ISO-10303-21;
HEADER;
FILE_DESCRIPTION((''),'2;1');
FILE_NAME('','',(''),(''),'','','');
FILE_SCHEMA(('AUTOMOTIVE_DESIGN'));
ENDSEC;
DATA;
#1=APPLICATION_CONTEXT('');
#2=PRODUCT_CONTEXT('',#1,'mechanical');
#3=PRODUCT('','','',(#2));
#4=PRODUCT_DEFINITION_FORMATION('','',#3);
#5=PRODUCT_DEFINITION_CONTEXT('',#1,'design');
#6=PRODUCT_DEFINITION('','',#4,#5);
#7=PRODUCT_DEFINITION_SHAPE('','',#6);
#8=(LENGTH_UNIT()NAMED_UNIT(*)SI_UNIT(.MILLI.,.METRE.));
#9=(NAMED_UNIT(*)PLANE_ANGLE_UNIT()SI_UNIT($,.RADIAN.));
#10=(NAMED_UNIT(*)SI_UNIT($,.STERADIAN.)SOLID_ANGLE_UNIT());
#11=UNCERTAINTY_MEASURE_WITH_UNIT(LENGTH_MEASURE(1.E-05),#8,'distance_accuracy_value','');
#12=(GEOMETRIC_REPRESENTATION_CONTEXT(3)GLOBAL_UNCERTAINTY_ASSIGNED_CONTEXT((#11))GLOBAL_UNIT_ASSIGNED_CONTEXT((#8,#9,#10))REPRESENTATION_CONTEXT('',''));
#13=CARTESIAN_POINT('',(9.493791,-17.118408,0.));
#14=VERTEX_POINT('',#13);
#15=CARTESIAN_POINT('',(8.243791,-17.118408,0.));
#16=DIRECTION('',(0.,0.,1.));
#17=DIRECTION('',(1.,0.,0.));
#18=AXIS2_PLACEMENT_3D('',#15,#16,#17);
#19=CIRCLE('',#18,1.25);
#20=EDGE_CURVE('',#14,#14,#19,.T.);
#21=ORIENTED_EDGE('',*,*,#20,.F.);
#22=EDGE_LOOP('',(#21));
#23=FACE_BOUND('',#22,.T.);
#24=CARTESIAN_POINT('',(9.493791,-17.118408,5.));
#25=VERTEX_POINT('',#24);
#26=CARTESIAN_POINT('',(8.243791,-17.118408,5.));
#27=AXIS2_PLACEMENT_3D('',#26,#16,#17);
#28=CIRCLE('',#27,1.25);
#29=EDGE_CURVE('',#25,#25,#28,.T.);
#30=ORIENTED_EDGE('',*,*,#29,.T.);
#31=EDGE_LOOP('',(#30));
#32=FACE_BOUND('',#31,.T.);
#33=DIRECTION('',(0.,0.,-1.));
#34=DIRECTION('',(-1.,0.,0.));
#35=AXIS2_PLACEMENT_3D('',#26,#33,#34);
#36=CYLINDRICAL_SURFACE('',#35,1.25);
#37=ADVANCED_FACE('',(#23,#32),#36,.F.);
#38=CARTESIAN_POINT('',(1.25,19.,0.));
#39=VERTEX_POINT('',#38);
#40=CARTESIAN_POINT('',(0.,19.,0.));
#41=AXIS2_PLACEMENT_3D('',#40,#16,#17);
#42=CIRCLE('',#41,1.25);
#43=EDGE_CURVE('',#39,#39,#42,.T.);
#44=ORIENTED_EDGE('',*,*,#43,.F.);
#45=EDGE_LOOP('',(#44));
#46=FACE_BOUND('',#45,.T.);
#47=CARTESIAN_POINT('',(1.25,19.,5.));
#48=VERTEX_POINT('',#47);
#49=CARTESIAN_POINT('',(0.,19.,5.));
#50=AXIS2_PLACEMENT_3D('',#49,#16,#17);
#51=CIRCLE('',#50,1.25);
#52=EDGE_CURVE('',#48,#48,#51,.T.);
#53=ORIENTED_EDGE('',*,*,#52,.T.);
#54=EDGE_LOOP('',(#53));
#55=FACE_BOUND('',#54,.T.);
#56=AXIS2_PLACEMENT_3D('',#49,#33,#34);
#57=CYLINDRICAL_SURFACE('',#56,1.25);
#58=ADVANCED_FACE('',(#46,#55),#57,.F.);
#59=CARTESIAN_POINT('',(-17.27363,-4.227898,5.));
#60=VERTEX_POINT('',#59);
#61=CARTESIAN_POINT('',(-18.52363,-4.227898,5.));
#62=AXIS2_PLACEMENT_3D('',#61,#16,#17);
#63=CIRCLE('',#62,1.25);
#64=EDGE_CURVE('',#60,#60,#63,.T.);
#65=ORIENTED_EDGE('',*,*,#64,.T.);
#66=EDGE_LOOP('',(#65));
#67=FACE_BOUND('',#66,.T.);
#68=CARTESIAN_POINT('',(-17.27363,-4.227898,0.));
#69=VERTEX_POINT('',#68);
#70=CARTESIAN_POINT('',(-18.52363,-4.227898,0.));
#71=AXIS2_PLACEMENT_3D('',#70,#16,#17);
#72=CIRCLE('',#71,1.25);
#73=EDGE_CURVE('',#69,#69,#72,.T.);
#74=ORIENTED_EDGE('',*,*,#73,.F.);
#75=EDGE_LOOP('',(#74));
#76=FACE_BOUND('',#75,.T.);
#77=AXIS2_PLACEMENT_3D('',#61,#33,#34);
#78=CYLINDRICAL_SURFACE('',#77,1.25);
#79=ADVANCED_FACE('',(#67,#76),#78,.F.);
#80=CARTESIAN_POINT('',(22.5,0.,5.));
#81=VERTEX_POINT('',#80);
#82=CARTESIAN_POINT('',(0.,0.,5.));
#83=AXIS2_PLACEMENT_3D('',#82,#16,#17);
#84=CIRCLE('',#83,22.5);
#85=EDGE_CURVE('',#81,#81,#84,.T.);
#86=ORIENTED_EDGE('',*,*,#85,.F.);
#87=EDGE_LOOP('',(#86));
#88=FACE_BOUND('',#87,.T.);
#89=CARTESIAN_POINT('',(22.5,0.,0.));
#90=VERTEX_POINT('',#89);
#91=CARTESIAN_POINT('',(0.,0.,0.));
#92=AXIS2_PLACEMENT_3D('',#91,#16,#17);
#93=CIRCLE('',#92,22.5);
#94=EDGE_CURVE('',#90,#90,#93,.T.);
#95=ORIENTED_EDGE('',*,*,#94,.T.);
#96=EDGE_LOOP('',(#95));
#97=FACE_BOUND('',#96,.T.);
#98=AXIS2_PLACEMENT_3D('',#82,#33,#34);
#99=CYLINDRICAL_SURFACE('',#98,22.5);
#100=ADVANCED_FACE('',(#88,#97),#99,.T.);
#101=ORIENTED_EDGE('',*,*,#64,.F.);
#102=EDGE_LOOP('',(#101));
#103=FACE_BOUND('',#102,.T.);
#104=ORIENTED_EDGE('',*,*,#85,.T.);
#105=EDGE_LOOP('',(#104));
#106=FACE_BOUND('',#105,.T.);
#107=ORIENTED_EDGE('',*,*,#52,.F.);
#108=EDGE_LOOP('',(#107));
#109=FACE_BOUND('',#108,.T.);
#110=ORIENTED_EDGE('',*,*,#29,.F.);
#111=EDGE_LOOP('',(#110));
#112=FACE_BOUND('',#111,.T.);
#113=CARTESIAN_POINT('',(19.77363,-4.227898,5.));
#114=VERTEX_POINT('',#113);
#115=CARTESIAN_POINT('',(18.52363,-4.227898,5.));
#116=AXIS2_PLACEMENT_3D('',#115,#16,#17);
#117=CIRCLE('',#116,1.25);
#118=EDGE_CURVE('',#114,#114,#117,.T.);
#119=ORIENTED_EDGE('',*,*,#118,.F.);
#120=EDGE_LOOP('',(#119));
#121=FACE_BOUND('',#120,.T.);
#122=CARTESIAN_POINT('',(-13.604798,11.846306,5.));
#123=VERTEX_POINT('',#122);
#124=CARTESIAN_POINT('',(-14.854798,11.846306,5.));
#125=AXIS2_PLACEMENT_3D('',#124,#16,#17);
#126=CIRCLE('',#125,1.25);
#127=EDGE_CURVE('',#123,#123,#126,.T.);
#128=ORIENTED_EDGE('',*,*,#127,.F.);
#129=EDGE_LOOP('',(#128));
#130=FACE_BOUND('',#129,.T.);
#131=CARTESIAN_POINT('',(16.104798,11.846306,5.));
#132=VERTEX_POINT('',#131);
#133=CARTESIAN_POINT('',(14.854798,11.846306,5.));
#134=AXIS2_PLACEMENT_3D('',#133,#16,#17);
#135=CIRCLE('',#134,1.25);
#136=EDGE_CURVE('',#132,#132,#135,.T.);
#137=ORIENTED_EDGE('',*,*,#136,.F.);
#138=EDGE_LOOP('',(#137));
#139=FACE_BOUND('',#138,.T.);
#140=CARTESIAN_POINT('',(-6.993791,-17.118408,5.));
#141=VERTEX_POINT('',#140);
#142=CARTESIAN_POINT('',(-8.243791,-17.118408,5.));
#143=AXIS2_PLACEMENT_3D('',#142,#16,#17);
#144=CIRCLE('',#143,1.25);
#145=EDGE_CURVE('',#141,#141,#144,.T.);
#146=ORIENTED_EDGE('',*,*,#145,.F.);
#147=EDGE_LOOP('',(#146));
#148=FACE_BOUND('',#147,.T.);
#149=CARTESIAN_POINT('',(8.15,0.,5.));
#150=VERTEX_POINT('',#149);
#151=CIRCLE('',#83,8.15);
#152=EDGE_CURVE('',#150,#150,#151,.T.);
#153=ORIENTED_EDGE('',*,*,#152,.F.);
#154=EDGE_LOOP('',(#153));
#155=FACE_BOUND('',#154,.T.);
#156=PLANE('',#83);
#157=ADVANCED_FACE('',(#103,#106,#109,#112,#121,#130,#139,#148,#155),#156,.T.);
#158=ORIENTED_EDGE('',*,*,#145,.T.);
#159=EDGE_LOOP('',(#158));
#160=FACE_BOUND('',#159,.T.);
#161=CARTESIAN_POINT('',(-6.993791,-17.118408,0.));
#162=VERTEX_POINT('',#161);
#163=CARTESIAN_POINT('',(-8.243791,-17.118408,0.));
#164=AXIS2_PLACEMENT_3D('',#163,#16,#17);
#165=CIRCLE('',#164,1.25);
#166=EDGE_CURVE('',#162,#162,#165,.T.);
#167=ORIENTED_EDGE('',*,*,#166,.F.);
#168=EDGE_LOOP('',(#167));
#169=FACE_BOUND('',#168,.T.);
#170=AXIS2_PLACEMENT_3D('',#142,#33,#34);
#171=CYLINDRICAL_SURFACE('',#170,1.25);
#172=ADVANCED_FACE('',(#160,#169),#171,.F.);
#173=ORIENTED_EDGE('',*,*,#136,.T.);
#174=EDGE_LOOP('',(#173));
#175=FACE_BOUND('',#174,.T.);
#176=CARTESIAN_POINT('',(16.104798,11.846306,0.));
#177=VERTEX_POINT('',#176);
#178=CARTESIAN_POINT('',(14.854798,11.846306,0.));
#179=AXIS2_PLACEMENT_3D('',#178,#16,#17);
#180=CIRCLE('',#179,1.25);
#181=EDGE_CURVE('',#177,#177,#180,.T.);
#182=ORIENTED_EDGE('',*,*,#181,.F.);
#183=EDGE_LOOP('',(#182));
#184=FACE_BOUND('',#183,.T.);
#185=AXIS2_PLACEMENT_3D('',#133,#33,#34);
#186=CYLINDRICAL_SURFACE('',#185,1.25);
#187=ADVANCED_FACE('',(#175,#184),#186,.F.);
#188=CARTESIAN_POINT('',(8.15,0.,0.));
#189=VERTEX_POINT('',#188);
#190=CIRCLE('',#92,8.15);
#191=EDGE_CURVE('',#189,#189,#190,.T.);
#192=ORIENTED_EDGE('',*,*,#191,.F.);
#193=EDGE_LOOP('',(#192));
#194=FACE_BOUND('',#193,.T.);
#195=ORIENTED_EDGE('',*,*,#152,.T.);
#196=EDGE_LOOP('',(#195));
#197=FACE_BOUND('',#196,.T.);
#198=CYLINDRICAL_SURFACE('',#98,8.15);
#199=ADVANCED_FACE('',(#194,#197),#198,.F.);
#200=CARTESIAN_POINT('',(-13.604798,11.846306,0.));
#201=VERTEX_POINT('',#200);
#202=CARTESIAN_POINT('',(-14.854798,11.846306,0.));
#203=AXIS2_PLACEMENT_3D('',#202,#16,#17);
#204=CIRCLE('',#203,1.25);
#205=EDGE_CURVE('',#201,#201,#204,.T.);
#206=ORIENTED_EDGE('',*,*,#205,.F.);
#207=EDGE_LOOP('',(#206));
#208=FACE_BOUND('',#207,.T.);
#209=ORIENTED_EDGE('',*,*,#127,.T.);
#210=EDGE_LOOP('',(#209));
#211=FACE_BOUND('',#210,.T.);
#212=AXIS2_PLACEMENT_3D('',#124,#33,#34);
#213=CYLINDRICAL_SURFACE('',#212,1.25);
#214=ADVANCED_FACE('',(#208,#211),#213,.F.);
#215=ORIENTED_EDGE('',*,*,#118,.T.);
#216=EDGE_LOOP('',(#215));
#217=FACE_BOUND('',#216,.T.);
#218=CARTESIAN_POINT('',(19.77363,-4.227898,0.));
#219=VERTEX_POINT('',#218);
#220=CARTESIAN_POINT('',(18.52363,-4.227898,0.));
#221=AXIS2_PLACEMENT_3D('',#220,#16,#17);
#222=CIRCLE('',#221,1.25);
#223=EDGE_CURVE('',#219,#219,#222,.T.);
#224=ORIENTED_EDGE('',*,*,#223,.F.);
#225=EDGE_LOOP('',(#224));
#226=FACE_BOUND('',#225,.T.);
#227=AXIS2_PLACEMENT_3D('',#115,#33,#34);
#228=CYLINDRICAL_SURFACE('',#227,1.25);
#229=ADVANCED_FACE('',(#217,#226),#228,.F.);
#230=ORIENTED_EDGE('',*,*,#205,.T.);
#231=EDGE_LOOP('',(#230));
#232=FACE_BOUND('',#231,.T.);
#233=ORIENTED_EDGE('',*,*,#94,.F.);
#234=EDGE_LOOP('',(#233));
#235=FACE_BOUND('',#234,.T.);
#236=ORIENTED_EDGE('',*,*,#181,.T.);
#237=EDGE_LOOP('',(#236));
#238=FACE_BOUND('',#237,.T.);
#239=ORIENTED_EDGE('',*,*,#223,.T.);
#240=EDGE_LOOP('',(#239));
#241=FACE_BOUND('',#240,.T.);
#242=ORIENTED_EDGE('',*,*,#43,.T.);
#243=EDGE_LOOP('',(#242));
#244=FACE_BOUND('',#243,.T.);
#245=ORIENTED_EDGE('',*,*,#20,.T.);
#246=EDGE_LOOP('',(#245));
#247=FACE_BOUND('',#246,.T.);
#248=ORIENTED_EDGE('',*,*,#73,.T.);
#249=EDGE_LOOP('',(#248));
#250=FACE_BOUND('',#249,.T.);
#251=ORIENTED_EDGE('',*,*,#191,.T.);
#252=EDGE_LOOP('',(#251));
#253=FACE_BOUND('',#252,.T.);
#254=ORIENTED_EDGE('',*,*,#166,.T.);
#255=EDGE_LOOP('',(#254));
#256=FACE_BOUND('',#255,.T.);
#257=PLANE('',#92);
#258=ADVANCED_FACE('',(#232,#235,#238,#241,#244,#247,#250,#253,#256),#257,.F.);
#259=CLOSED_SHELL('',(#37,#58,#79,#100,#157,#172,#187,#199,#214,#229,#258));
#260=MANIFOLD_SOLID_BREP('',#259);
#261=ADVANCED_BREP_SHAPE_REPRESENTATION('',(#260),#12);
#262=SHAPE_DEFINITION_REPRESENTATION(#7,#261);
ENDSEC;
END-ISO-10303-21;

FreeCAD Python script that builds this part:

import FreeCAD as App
import Part
import Sketcher

V = App.Vector

doc = App.newDocument("Part")
params = doc.addObject("Spreadsheet::Sheet", "Params")
for row, (alias, value) in enumerate([
    ("sketch1_diameter", "45 mm"),
    ("sketch1_diameter2", "2.5 mm"),
    ("sketch1_diameter3", "16.3 mm"),
    ("pad1_length", "5 mm"),
], start=1):
    params.set(f"A{row}", alias)
    params.set(f"B{row}", "=" + value)
    params.setAlias(f"B{row}", alias)

body = doc.addObject("PartDesign::Body", "Body")

# Sketch on XY plane
sketch1 = body.newObject("Sketcher::SketchObject", "Sketch")
sketch1.AttachmentSupport = (doc.getObject("XY_Plane"), [""])
sketch1.MapMode = "FlatFace"
sketch1.addGeometry([
    Part.Circle(V(0, 0, 0), V(0, 0, 1), 22.5),  # 0
    Part.Circle(V(-8.2, -17.1, 0), V(0, 0, 1), 1.2),  # 1
    Part.Circle(V(-18.5, -4.2, 0), V(0, 0, 1), 1.2),  # 2
    Part.Circle(V(8.2, -17.1, 0), V(0, 0, 1), 1.2),  # 3
    Part.Circle(V(0, 0, 0), V(0, 0, 1), 8.2),  # 4
    Part.Circle(V(18.5, -4.2, 0), V(0, 0, 1), 1.2),  # 5
    Part.Circle(V(-14.9, 11.8, 0), V(0, 0, 1), 1.2),  # 6
    Part.Circle(V(0, 19, 0), V(0, 0, 1), 1.2),  # 7
    Part.Circle(V(14.9, 11.8, 0), V(0, 0, 1), 1.2),  # 8
], False)
sketch1.addConstraint([
    Sketcher.Constraint("Coincident", 0, 3, -1, 1),
    Sketcher.Constraint("Coincident", 4, 3, -1, 1),
    Sketcher.Constraint("Equal", 1, 2),
    Sketcher.Constraint("Equal", 2, 3),
    Sketcher.Constraint("Equal", 3, 5),
    Sketcher.Constraint("Equal", 5, 6),
    Sketcher.Constraint("Equal", 6, 7),
    Sketcher.Constraint("Equal", 7, 8),
    Sketcher.Constraint("Symmetric", 1, 3, 3, 3, -2),
    Sketcher.Constraint("Symmetric", 2, 3, 5, 3, -2),
    Sketcher.Constraint("Symmetric", 6, 3, 8, 3, -2),
    Sketcher.Constraint("PointOnObject", 7, 3, -2),
    Sketcher.Constraint("Diameter", 0, 45.0),
    Sketcher.Constraint("Diameter", 1, 2.5),
    Sketcher.Constraint("Diameter", 4, 16.3),
    Sketcher.Constraint("DistanceY", -1, 1, 7, 3, 19.0),
    Sketcher.Constraint("DistanceX", 6, 3, -1, 1, 14.854798),
    Sketcher.Constraint("DistanceX", 1, 3, -1, 1, 8.243791),
    Sketcher.Constraint("DistanceY", 1, 3, -1, 1, 17.118408),
    Sketcher.Constraint("DistanceX", 2, 3, -1, 1, 18.52363),
    Sketcher.Constraint("DistanceY", 1, 3, 2, 3, 12.890511),
    Sketcher.Constraint("DistanceY", -1, 1, 6, 3, 11.846306),
])
sketch1.setExpression("Constraints[12]", "Params.sketch1_diameter")
sketch1.setExpression("Constraints[13]", "Params.sketch1_diameter2")
sketch1.setExpression("Constraints[14]", "Params.sketch1_diameter3")
pad1 = body.newObject("PartDesign::Pad", "Pad")
pad1.Profile = sketch1
pad1.setExpression("Length", "Params.pad1_length")

doc.recompute()
